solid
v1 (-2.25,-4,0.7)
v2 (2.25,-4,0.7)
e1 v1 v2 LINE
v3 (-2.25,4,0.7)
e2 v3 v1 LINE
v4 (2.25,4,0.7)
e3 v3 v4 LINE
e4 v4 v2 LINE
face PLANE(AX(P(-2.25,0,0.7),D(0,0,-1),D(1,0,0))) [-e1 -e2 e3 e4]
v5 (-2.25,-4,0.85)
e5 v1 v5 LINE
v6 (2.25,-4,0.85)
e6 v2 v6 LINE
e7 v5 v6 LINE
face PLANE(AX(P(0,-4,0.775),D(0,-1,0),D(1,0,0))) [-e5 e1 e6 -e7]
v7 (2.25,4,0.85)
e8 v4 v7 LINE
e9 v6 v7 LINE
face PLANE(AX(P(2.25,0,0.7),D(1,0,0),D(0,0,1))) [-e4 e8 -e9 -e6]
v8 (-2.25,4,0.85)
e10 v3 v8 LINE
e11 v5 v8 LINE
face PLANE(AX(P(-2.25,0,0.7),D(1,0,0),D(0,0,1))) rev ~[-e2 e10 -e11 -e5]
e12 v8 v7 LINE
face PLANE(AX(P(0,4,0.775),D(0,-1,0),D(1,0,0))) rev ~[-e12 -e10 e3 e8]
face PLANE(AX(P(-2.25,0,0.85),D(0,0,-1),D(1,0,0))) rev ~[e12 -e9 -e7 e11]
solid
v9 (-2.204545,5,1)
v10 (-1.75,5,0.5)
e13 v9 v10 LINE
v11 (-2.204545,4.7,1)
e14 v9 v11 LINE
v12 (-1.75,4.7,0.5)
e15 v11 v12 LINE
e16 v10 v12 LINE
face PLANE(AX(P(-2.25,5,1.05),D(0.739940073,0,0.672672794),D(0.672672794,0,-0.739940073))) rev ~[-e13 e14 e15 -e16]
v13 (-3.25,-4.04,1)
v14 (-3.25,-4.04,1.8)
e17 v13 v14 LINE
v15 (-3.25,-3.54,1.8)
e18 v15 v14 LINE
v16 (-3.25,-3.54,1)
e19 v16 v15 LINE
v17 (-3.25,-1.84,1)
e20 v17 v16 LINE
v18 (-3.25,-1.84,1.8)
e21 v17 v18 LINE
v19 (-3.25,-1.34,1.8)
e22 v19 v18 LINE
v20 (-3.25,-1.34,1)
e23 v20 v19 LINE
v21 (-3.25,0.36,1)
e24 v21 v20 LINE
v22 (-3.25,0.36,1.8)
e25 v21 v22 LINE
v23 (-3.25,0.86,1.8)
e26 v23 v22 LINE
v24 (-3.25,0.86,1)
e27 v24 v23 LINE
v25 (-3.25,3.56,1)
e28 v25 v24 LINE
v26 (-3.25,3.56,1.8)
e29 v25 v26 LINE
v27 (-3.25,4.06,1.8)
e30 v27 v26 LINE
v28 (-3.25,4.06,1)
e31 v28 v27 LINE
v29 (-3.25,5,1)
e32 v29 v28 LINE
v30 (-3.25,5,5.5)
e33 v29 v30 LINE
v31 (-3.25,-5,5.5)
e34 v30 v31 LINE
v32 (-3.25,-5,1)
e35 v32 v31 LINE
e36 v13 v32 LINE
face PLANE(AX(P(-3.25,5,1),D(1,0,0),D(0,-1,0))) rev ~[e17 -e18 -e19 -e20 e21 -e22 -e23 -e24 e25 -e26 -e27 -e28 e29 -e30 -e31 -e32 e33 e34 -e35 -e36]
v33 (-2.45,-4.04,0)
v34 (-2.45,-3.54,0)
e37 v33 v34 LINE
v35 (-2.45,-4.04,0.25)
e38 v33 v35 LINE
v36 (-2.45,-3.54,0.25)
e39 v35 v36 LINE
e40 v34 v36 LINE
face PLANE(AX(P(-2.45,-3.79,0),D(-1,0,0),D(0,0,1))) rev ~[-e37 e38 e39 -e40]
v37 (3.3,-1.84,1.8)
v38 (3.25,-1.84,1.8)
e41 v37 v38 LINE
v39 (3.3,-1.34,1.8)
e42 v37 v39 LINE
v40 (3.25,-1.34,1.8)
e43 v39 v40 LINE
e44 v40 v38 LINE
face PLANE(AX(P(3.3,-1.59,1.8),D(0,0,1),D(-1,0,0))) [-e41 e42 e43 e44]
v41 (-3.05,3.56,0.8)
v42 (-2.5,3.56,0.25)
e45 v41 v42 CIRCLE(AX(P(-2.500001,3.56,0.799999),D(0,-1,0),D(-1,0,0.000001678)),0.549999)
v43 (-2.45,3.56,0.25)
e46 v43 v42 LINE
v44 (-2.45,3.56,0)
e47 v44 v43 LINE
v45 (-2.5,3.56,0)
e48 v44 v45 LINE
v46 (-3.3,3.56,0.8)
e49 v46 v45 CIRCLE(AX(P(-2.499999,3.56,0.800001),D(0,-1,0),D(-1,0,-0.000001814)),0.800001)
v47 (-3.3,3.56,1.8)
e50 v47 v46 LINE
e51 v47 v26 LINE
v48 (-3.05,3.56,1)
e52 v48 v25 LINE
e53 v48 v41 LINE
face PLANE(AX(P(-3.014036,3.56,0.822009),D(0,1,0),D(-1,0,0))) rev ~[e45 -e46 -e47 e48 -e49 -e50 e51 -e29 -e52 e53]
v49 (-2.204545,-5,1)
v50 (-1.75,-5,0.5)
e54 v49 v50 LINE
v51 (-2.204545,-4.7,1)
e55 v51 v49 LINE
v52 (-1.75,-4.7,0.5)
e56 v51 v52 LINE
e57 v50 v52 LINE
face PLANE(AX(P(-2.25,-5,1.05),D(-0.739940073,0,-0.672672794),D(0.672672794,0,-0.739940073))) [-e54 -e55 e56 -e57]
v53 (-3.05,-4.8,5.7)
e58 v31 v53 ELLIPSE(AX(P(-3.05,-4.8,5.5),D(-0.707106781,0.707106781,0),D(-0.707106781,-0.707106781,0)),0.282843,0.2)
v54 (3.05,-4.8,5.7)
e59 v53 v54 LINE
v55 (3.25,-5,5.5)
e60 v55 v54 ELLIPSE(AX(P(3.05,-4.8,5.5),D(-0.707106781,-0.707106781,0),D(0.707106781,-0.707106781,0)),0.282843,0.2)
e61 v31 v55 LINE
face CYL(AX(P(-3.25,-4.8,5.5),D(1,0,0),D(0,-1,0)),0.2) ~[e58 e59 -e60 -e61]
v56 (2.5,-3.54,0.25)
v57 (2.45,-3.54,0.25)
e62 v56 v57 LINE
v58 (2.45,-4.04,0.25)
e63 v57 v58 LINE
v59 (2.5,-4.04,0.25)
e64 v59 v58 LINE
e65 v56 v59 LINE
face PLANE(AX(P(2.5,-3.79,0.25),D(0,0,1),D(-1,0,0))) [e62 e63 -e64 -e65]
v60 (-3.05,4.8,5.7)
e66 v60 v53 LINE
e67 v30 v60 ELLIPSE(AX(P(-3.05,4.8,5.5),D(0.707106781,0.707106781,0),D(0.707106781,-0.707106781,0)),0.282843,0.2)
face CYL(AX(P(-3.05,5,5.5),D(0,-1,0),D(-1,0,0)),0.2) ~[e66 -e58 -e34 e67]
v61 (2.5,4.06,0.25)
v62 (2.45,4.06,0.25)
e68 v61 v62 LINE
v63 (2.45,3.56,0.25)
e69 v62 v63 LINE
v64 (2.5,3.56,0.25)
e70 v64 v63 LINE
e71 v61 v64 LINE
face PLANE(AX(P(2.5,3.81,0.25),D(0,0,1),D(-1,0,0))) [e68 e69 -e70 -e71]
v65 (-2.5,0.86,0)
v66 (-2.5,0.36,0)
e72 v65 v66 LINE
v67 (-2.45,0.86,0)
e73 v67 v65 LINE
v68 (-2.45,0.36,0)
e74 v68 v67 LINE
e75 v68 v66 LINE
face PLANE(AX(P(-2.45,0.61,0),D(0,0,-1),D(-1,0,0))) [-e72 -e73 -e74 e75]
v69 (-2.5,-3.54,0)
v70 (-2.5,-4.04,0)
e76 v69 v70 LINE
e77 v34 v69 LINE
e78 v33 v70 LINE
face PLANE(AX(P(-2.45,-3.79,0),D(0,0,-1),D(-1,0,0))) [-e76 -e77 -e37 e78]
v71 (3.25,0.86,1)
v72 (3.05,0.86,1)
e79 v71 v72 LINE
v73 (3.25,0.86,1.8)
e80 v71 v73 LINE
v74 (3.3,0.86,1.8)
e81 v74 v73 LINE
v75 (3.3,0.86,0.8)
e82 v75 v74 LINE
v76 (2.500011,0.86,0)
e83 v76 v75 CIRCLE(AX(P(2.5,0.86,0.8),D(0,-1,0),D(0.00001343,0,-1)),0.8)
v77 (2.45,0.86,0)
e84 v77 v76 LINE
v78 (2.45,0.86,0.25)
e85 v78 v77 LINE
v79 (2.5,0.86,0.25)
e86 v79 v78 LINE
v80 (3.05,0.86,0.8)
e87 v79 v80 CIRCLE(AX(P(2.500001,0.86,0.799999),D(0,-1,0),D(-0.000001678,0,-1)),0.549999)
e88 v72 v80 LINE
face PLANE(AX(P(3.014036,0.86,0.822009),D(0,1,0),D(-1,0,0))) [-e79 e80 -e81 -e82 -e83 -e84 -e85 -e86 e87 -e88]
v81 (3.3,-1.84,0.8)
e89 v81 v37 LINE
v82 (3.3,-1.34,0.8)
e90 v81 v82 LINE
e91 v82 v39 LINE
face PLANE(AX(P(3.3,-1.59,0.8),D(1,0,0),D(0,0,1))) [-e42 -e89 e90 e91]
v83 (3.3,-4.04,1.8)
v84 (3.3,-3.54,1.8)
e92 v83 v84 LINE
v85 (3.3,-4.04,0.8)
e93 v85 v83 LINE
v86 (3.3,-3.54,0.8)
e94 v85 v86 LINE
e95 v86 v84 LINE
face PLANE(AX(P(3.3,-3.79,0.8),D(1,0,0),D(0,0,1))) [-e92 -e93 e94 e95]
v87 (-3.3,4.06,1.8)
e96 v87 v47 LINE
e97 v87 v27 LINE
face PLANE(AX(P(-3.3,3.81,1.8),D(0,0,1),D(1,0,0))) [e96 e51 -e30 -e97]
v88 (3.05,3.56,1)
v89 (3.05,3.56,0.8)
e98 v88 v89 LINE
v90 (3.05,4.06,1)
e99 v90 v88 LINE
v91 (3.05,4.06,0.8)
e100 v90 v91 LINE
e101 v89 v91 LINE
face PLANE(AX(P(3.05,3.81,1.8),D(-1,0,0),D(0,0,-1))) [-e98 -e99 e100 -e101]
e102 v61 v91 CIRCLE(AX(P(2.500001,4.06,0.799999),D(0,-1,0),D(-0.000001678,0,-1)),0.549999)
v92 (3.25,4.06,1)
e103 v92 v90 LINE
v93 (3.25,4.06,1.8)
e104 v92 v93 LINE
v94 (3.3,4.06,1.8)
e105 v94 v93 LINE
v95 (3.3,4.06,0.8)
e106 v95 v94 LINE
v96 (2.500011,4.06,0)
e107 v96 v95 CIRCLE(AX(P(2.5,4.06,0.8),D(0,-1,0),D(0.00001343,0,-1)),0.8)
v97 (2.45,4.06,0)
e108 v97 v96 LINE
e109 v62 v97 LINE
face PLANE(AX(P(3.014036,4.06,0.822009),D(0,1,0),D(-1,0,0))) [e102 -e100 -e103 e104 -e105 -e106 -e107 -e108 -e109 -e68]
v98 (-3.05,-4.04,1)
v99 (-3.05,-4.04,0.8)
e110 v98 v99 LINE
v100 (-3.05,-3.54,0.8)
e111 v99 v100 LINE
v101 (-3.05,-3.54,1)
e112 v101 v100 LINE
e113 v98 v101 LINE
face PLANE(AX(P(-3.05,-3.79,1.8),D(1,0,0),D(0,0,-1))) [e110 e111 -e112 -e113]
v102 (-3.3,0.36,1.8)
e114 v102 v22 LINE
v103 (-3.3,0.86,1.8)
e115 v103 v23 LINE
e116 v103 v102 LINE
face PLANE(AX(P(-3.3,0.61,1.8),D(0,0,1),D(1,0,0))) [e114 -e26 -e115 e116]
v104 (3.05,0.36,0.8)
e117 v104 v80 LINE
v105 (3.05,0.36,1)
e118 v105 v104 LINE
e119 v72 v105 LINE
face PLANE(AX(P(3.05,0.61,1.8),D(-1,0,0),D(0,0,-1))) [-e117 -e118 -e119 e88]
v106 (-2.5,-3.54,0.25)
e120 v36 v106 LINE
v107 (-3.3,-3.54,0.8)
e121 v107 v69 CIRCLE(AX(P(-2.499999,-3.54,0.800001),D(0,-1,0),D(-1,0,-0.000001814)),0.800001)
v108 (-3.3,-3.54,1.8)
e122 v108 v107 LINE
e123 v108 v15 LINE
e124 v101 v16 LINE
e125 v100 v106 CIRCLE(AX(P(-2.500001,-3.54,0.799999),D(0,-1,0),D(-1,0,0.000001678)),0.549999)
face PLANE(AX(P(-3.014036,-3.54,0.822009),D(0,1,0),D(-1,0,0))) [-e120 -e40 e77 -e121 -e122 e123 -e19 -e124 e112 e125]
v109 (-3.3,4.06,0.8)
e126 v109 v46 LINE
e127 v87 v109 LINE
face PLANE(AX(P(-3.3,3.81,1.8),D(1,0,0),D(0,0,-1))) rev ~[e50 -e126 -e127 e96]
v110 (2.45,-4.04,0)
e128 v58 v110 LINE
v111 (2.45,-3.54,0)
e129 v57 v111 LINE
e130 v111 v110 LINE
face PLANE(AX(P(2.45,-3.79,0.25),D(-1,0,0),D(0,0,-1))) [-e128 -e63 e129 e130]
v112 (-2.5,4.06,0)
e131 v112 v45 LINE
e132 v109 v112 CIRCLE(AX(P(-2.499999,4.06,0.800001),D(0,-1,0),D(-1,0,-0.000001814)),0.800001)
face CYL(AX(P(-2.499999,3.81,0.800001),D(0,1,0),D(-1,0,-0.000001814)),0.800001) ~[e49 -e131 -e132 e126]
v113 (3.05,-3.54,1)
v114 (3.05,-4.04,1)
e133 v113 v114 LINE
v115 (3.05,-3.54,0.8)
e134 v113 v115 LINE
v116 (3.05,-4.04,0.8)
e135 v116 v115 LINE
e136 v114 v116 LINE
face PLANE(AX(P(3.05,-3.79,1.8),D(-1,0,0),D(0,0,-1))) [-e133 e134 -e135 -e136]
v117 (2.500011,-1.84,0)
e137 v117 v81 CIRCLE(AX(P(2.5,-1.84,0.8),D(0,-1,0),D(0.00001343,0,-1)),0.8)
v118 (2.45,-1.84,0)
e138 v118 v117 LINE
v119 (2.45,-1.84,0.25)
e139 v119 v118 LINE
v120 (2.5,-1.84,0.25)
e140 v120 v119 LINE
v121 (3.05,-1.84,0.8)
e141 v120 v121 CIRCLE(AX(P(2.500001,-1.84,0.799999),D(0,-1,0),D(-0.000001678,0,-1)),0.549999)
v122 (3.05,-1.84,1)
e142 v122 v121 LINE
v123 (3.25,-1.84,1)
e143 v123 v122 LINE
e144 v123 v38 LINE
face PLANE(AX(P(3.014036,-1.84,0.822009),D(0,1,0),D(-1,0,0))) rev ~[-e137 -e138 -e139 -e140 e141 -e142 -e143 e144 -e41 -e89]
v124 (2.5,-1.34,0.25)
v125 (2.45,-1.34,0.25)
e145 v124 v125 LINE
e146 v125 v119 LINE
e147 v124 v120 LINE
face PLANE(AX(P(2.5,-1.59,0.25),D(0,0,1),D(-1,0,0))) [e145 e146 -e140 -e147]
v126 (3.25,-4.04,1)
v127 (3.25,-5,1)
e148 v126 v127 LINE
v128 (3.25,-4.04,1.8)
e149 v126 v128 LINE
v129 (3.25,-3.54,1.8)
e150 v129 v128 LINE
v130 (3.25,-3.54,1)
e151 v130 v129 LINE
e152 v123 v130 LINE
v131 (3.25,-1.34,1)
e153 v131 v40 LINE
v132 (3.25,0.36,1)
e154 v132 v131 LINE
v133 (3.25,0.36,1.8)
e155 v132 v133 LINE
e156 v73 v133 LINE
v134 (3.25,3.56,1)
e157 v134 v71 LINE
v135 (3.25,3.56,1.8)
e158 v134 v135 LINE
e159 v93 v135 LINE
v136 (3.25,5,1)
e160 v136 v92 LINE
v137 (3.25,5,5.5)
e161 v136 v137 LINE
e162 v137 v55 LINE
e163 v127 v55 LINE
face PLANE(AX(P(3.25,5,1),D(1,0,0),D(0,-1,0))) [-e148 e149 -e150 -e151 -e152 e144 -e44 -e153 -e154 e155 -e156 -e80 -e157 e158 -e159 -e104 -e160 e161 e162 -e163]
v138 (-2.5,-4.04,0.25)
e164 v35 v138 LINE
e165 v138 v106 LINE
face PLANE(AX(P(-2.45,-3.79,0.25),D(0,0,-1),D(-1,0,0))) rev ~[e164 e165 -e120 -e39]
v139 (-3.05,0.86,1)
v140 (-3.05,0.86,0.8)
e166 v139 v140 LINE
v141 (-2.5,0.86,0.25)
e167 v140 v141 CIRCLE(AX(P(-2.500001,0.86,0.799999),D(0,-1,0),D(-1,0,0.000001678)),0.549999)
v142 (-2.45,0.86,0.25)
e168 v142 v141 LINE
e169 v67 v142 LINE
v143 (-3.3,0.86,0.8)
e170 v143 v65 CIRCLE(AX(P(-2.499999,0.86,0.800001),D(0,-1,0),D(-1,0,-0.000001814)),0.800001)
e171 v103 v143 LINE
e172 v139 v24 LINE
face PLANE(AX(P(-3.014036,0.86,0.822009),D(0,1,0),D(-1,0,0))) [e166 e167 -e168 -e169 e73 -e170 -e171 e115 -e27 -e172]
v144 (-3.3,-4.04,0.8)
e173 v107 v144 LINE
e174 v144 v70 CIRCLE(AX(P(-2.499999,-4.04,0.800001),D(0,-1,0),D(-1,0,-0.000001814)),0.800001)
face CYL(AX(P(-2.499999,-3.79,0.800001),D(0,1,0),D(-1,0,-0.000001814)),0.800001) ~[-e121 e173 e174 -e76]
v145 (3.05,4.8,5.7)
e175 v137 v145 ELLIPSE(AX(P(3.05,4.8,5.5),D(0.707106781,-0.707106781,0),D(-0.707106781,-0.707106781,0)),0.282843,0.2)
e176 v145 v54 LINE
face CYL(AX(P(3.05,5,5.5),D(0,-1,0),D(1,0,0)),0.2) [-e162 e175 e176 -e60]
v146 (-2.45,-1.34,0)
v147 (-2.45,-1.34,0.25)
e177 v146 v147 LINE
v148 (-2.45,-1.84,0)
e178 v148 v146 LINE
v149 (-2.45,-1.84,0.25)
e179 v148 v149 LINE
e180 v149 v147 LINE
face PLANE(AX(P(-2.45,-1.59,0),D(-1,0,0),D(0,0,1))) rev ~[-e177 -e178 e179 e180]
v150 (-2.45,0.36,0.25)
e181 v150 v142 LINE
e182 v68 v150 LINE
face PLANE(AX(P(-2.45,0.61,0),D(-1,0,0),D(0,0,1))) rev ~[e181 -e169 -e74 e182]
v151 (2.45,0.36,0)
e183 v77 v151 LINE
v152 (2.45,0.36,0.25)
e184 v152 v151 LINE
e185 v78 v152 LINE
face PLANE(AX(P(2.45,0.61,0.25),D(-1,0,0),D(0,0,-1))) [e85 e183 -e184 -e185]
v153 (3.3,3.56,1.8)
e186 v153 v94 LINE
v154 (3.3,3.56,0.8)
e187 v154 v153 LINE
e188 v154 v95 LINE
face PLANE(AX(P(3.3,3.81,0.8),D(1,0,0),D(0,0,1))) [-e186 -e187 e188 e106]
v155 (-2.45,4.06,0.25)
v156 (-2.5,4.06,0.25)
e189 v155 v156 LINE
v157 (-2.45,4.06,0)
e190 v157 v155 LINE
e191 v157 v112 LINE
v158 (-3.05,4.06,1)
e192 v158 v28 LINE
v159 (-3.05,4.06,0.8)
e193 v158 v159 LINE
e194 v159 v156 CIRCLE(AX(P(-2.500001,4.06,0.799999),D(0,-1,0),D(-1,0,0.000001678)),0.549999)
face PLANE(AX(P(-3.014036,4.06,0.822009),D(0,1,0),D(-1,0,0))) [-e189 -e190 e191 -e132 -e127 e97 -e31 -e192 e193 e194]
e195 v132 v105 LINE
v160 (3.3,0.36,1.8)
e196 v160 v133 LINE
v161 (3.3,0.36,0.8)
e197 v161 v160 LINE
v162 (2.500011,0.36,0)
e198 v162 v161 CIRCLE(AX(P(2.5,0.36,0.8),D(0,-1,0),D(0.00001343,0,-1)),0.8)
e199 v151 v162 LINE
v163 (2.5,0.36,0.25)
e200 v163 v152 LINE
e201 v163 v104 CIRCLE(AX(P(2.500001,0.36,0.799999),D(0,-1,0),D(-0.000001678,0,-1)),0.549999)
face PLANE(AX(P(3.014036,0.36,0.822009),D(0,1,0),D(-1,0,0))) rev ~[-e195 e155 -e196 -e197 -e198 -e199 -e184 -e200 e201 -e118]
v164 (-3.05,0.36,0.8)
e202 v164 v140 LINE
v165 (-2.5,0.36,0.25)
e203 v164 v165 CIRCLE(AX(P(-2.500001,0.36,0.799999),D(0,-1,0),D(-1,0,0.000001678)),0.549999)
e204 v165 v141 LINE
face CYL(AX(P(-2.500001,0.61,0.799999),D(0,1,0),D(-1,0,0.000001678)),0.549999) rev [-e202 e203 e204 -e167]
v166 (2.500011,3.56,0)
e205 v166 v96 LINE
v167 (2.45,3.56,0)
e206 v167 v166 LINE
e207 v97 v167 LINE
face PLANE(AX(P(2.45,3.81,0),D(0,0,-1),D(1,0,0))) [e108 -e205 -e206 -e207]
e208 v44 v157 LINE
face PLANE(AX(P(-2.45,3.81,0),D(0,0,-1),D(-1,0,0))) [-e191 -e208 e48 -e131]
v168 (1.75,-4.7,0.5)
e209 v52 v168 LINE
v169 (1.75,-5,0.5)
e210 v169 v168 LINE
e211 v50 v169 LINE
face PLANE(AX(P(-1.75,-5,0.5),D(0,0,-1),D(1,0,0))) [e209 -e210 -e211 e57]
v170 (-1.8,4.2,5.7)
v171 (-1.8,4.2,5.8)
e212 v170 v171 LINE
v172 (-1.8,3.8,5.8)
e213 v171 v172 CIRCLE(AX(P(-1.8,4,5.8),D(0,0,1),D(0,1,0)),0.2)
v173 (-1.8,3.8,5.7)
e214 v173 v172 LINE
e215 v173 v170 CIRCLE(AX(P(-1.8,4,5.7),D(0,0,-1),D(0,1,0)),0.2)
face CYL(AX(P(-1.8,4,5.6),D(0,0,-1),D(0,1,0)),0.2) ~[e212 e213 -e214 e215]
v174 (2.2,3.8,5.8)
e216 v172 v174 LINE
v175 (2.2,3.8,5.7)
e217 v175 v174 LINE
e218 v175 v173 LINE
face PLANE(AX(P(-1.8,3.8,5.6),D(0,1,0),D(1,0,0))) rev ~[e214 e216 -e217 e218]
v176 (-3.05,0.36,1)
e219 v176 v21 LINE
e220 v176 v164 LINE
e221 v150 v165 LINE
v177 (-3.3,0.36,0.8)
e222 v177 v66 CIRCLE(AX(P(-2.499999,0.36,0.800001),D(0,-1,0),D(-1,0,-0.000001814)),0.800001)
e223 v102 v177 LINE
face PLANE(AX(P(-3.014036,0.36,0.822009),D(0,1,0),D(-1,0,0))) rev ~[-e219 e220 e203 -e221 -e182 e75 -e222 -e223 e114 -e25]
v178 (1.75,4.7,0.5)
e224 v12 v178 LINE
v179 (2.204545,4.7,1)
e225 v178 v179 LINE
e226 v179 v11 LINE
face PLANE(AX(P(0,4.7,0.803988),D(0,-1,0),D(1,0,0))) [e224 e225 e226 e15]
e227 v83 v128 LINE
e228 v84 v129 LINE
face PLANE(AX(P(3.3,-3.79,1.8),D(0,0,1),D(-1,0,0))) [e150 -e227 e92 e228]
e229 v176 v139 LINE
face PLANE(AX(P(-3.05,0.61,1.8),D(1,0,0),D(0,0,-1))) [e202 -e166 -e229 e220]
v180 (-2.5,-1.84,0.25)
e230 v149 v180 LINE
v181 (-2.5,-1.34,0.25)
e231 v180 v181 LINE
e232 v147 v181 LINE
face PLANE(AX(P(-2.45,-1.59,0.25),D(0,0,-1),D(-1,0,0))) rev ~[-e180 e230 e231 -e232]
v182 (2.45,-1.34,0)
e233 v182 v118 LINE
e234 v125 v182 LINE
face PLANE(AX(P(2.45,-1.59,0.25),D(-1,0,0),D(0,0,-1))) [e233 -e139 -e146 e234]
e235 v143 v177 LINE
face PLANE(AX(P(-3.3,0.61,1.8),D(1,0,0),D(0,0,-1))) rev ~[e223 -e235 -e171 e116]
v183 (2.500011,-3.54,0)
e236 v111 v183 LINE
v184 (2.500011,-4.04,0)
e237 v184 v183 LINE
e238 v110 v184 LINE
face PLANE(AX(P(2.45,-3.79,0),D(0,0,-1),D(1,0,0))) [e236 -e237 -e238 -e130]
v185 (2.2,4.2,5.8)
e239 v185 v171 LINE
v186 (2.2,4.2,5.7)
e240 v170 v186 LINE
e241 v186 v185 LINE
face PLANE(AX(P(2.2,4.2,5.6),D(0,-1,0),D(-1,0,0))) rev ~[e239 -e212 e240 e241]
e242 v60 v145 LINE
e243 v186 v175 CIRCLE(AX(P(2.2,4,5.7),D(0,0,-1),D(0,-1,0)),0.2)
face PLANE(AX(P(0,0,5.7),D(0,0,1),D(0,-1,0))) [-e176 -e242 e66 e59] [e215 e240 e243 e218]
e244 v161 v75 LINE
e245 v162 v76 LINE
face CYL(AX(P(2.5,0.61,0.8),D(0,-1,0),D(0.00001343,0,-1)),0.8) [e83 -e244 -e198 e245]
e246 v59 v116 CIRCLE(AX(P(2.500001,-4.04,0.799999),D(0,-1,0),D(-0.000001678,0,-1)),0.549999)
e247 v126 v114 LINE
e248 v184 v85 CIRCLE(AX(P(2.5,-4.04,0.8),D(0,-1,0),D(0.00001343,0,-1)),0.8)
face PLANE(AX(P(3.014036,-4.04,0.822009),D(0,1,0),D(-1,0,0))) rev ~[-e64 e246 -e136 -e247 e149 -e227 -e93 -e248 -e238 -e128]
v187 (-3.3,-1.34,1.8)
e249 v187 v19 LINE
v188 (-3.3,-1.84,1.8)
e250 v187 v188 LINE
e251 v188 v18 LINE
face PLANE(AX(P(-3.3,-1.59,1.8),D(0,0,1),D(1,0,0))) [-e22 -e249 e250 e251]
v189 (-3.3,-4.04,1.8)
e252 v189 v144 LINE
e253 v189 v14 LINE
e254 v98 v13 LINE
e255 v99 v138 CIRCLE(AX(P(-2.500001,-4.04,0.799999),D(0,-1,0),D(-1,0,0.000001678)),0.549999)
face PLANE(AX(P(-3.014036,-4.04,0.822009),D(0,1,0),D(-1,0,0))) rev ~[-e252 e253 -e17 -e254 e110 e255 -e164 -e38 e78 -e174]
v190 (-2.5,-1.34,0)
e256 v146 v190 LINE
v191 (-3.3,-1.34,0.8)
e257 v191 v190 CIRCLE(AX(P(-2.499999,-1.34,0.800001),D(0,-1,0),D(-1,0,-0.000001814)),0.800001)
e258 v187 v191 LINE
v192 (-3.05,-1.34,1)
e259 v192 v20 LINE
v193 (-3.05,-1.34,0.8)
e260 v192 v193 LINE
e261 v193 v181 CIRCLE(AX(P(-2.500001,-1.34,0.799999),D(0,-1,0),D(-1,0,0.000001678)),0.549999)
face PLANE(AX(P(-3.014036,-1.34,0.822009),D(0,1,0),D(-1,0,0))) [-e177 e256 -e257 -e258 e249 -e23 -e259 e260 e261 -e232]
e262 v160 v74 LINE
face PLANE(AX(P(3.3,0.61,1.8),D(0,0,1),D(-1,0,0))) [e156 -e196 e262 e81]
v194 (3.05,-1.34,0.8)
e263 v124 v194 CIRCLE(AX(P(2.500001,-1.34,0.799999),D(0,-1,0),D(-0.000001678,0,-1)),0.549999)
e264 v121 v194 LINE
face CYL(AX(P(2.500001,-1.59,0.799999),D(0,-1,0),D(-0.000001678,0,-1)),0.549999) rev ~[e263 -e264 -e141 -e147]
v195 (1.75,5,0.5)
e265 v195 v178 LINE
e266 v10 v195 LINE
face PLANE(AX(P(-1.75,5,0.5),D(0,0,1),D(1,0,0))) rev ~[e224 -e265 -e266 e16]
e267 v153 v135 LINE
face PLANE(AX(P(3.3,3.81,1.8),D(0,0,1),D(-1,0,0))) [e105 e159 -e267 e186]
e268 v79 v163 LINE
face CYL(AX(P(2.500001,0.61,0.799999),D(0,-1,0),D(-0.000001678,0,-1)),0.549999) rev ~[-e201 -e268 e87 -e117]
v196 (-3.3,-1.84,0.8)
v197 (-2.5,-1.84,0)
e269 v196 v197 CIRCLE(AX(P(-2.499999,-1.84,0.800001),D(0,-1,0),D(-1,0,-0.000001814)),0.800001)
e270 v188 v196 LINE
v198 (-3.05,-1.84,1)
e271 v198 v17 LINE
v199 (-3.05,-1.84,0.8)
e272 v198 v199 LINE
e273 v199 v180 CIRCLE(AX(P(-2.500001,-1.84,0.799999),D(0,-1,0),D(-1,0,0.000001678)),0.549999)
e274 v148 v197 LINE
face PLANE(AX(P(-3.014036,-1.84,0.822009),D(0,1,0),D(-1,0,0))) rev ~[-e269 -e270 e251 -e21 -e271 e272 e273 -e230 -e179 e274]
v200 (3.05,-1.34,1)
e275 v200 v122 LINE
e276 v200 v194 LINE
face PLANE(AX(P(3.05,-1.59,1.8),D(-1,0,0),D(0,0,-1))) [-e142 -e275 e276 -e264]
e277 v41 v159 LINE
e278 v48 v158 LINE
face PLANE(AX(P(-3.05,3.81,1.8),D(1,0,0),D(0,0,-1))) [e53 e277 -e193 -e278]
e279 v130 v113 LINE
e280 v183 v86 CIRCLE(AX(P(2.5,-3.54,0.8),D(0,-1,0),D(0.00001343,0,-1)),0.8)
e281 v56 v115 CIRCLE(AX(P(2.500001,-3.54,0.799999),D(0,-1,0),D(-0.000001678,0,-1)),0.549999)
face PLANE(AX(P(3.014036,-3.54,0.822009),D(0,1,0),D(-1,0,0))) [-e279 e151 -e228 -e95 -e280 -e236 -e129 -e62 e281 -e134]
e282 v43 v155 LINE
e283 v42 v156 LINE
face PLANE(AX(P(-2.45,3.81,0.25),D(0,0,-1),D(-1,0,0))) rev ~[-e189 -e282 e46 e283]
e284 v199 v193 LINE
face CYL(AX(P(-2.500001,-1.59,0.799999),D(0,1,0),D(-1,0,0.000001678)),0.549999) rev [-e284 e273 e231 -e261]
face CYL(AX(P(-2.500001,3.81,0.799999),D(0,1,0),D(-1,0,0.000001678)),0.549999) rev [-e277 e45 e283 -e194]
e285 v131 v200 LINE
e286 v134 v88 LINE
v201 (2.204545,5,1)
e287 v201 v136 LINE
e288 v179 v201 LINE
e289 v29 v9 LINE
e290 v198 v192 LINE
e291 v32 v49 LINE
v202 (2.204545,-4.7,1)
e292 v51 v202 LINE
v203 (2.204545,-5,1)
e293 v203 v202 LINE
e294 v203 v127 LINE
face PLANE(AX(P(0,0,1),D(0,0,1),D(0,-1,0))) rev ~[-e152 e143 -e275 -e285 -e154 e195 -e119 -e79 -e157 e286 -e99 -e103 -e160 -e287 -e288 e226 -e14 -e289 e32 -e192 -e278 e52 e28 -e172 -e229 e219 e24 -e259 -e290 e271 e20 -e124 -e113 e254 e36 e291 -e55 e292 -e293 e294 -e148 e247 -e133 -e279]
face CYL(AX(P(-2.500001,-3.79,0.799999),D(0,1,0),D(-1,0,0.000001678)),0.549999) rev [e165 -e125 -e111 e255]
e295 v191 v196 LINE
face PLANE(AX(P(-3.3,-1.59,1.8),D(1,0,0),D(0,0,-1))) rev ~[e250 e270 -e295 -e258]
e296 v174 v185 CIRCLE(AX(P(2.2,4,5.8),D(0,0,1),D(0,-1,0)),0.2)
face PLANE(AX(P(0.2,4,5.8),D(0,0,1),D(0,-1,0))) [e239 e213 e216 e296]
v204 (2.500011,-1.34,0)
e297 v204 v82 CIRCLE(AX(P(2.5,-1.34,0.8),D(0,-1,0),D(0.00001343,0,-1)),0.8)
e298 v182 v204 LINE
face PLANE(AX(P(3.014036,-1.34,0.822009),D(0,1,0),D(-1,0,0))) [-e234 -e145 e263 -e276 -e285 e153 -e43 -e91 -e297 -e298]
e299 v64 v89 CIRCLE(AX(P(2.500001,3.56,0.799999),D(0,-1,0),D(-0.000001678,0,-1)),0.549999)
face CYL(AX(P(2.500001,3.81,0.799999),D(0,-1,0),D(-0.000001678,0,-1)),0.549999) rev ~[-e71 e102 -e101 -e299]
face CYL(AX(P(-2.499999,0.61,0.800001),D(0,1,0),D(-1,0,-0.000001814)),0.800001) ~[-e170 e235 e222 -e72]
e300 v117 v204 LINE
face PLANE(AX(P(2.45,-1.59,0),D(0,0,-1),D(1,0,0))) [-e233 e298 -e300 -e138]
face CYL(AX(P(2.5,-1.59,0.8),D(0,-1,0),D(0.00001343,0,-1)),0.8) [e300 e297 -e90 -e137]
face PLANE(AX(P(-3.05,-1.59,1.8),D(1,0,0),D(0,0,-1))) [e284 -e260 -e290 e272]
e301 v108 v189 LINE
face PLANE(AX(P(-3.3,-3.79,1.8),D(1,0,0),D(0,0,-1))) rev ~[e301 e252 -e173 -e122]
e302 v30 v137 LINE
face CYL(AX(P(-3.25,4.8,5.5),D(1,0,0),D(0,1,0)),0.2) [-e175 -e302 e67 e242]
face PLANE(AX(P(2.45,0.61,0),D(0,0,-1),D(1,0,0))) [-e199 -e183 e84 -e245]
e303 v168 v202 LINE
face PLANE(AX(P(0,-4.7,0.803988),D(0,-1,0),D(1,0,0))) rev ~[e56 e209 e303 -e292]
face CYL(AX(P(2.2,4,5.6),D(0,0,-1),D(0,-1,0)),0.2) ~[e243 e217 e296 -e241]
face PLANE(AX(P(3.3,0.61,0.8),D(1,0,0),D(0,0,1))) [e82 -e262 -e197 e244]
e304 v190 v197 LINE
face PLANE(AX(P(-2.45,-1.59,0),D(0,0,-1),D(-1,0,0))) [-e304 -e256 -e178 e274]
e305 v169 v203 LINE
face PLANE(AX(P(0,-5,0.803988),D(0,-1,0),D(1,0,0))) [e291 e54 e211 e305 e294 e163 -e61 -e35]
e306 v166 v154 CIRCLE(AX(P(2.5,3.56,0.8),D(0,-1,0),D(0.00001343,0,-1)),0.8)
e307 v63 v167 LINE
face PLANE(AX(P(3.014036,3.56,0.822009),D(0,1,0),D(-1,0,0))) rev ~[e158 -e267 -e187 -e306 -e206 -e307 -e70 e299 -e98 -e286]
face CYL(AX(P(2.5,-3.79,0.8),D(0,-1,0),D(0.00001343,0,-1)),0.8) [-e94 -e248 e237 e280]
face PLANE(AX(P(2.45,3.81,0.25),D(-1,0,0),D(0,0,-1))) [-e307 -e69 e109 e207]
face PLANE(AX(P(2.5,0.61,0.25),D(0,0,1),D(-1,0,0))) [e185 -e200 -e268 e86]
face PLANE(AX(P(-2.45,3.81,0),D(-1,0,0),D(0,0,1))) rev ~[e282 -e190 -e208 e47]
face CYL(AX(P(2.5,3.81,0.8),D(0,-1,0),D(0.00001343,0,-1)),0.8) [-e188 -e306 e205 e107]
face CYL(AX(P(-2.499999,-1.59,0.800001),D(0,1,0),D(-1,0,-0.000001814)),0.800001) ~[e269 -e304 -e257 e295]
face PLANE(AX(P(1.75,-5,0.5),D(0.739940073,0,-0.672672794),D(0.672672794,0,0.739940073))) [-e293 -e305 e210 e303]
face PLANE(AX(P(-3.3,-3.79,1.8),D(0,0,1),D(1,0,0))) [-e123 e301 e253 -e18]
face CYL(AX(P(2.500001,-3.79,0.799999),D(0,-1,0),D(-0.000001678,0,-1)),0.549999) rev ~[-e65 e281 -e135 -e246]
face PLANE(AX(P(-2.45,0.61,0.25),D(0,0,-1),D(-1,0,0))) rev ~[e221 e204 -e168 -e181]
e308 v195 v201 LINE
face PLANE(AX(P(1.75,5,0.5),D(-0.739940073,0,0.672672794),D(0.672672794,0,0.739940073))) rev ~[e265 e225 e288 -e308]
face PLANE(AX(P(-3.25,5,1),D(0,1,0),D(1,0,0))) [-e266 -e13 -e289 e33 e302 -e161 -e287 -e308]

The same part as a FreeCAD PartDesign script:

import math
import FreeCAD as App
import Part
import Sketcher

V = App.Vector
Q = App.Units.Quantity


def edges_at(feature, points):
    """Names of the edges that pass closest to the given points."""
    edges = feature.Shape.Edges
    near = lambda p: min(range(len(edges)), key=lambda i: edges[i].distToShape(Part.Vertex(*p))[0])
    return sorted({f"Edge{near(p) + 1}" for p in points})


def add_polygon(sketch, points):
    """Adds a closed chain of lines whose ends are joined by coincident constraints."""
    first, n = sketch.GeometryCount, len(points)
    for a, b in zip(points, points[1:] + points[:1]):
        sketch.addGeometry(Part.LineSegment(App.Vector(*a, 0), App.Vector(*b, 0)), False)
    for i in range(n):
        sketch.addConstraint(Sketcher.Constraint("Coincident", first + i, 2, first + (i + 1) % n, 1))

doc = App.newDocument("Part")
body = doc.addObject("PartDesign::Body", "Body")

sketch1 = doc.addObject("Sketcher::SketchObject", "Sketch")
body.addObject(sketch1)
sketch1.AttachmentSupport = (doc.XY_Plane, [""])
sketch1.MapMode = "FlatFace"
sketch1.AttachmentOffset = App.Placement(V(0, 0, 1), App.Rotation())
add_polygon(sketch1, [(3, 5), (-3, 5), (-3, -5), (3, -5)])
sketch1.addConstraint([
    Sketcher.Constraint("Horizontal", 0),
    Sketcher.Constraint("Vertical", 1),
    Sketcher.Constraint("Horizontal", 2),
    Sketcher.Constraint("Vertical", 3),
    Sketcher.Constraint("Symmetric", 0, 2, 2, 2, -1, 1),
    Sketcher.Constraint("DistanceY", 1, 2, 1, 1, Q("10 mm")),
    Sketcher.Constraint("DistanceX", 0, 2, 0, 1, Q("6.5 mm")),
])
pad1 = doc.addObject("PartDesign::Pad", "Pad")
body.addObject(pad1)
pad1.Profile = sketch1
pad1.Length = 4.7
doc.recompute()

fillet = doc.addObject("PartDesign::Fillet", "Fillet")
body.addObject(fillet)
fillet.Base = (pad1, edges_at(pad1, [
    (-3.25, 0, 5.7),
    (0, -5, 5.7),
    (3.25, 0, 5.7),
    (0, 5, 5.7),
]))
fillet.Radius = 0.2
body2 = doc.addObject("PartDesign::Body", "Body001")
body2.AllowCompound = True

sketch2 = doc.addObject("Sketcher::SketchObject", "Sketch001")
body2.addObject(sketch2)
sketch2.AttachmentSupport = (doc.getObject("XZ_Plane001"), [""])
sketch2.MapMode = "FlatFace"
sketch2.AttachmentOffset = App.Placement(V(0, 0, 1.59), App.Rotation())
sketch2.addGeometry([
    Part.LineSegment(V(-3.05, 1.8, 0), V(-3.3, 1.8, 0)),
    Part.LineSegment(V(-3.3, 1.8, 0), V(-3.3, 0.8, 0)),
    Part.ArcOfCircle(Part.Circle(V(-2.5, 0.8, 0), V(0, 0, 1), 0.8), math.radians(-180), math.radians(-90)),
    Part.LineSegment(V(-2.5, 0, 0), V(-2.45, 0, 0)),
    Part.LineSegment(V(-2.45, 0, 0), V(-2.45, 0.25, 0)),
    Part.LineSegment(V(-2.45, 0.25, 0), V(-2.5, 0.25, 0)),
    Part.ArcOfCircle(Part.Circle(V(-2.5, 0.8, 0), V(0, 0, 1), 0.55), math.radians(180), math.radians(270)),
    Part.LineSegment(V(-3.05, 0.8, 0), V(-3.05, 1.8, 0)),
    Part.ArcOfCircle(Part.Circle(V(2.5, 0.8, 0), V(0, 0, 1), 0.55), math.radians(-90), math.radians(0)),
    Part.LineSegment(V(2.5, 0.25, 0), V(2.45, 0.25, 0)),
    Part.LineSegment(V(2.45, 0.25, 0), V(2.45, 0, 0)),
    Part.LineSegment(V(2.45, 0, 0), V(2.5, 0, 0)),
    Part.ArcOfCircle(Part.Circle(V(2.5, 0.8, 0), V(0, 0, 1), 0.8), math.radians(-90), math.radians(0)),
    Part.LineSegment(V(3.3, 0.8, 0), V(3.3, 1.8, 0)),
    Part.LineSegment(V(3.3, 1.8, 0), V(3.05, 1.8, 0)),
    Part.LineSegment(V(3.05, 1.8, 0), V(3.05, 0.8, 0)),
], False)
sketch2.addConstraint([
    Sketcher.Constraint("Coincident", 0, 2, 1, 1),
    Sketcher.Constraint("Tangent", 1, 2, 2, 1),
    Sketcher.Constraint("Tangent", 2, 2, 3, 1),
    Sketcher.Constraint("Coincident", 3, 2, 4, 1),
    Sketcher.Constraint("Coincident", 4, 2, 5, 1),
    Sketcher.Constraint("Tangent", 5, 2, 6, 2),
    Sketcher.Constraint("Tangent", 6, 1, 7, 1),
    Sketcher.Constraint("Coincident", 7, 2, 0, 1),
    Sketcher.Constraint("Tangent", 8, 1, 9, 1),
    Sketcher.Constraint("Coincident", 9, 2, 10, 1),
    Sketcher.Constraint("Coincident", 10, 2, 11, 1),
    Sketcher.Constraint("Coincident", 11, 2, 12, 1),
    Sketcher.Constraint("Tangent", 12, 2, 13, 1),
    Sketcher.Constraint("Coincident", 13, 2, 14, 1),
    Sketcher.Constraint("Coincident", 14, 2, 15, 1),
    Sketcher.Constraint("Tangent", 15, 2, 8, 2),
    Sketcher.Constraint("Horizontal", 0),
    Sketcher.Constraint("Vertical", 1),
    Sketcher.Constraint("Horizontal", 3),
    Sketcher.Constraint("Vertical", 4),
    Sketcher.Constraint("Horizontal", 5),
    Sketcher.Constraint("Vertical", 7),
    Sketcher.Constraint("Horizontal", 9),
    Sketcher.Constraint("Vertical", 10),
    Sketcher.Constraint("Horizontal", 11),
    Sketcher.Constraint("Vertical", 13),
    Sketcher.Constraint("Horizontal", 14),
    Sketcher.Constraint("Vertical", 15),
    Sketcher.Constraint("Coincident", 6, 3, 2, 3),
    Sketcher.Constraint("Coincident", 12, 3, 8, 3),
    Sketcher.Constraint("Equal", 6, 8),
    Sketcher.Constraint("Equal", 2, 12),
    Sketcher.Constraint("Symmetric", 3, 2, 10, 2, -1, 1),
    Sketcher.Constraint("Symmetric", 2, 3, 8, 3, -2),
    Sketcher.Constraint("Horizontal", 7, 2, 13, 2),
    Sketcher.Constraint("Radius", 2, Q("0.800001 mm")),
    Sketcher.Constraint("DistanceY", 1, 2, 1, 1, Q("1 mm")),
    Sketcher.Constraint("Radius", 6, Q("0.549999 mm")),
    Sketcher.Constraint("DistanceX", 2, 3, 8, 3, Q("4.999999 mm")),
    Sketcher.Constraint("DistanceX", 3, 1, 3, 2, Q("0.05 mm")),
    Sketcher.Constraint("DistanceX", 11, 1, 11, 2, Q("0.050011 mm")),
])
pad2 = doc.addObject("PartDesign::Pad", "Pad001")
body2.addObject(pad2)
pad2.Profile = sketch2
pad2.Length = 0.5
pad2.Midplane = True
body3 = doc.addObject("PartDesign::Body", "Body002")
body3.AllowCompound = True

sketch3 = doc.addObject("Sketcher::SketchObject", "Sketch002")
body3.addObject(sketch3)
sketch3.AttachmentSupport = (doc.getObject("XZ_Plane002"), [""])
sketch3.MapMode = "FlatFace"
sketch3.AttachmentOffset = App.Placement(V(0, 0, 3.79), App.Rotation())
sketch3.addGeometry([
    Part.LineSegment(V(-3.05, 1.8, 0), V(-3.3, 1.8, 0)),
    Part.LineSegment(V(-3.3, 1.8, 0), V(-3.3, 0.8, 0)),
    Part.ArcOfCircle(Part.Circle(V(-2.5, 0.8, 0), V(0, 0, 1), 0.8), math.radians(-180), math.radians(-90)),
    Part.LineSegment(V(-2.5, 0, 0), V(-2.45, 0, 0)),
    Part.LineSegment(V(-2.45, 0, 0), V(-2.45, 0.25, 0)),
    Part.LineSegment(V(-2.45, 0.25, 0), V(-2.5, 0.25, 0)),
    Part.ArcOfCircle(Part.Circle(V(-2.5, 0.8, 0), V(0, 0, 1), 0.55), math.radians(180), math.radians(270)),
    Part.LineSegment(V(-3.05, 0.8, 0), V(-3.05, 1.8, 0)),
    Part.ArcOfCircle(Part.Circle(V(2.5, 0.8, 0), V(0, 0, 1), 0.55), math.radians(-90), math.radians(0)),
    Part.LineSegment(V(2.5, 0.25, 0), V(2.45, 0.25, 0)),
    Part.LineSegment(V(2.45, 0.25, 0), V(2.45, 0, 0)),
    Part.LineSegment(V(2.45, 0, 0), V(2.5, 0, 0)),
    Part.ArcOfCircle(Part.Circle(V(2.5, 0.8, 0), V(0, 0, 1), 0.8), math.radians(-90), math.radians(0)),
    Part.LineSegment(V(3.3, 0.8, 0), V(3.3, 1.8, 0)),
    Part.LineSegment(V(3.3, 1.8, 0), V(3.05, 1.8, 0)),
    Part.LineSegment(V(3.05, 1.8, 0), V(3.05, 0.8, 0)),
], False)
sketch3.addConstraint([
    Sketcher.Constraint("Coincident", 0, 2, 1, 1),
    Sketcher.Constraint("Tangent", 1, 2, 2, 1),
    Sketcher.Constraint("Tangent", 2, 2, 3, 1),
    Sketcher.Constraint("Coincident", 3, 2, 4, 1),
    Sketcher.Constraint("Coincident", 4, 2, 5, 1),
    Sketcher.Constraint("Tangent", 5, 2, 6, 2),
    Sketcher.Constraint("Tangent", 6, 1, 7, 1),
    Sketcher.Constraint("Coincident", 7, 2, 0, 1),
    Sketcher.Constraint("Tangent", 8, 1, 9, 1),
    Sketcher.Constraint("Coincident", 9, 2, 10, 1),
    Sketcher.Constraint("Coincident", 10, 2, 11, 1),
    Sketcher.Constraint("Coincident", 11, 2, 12, 1),
    Sketcher.Constraint("Tangent", 12, 2, 13, 1),
    Sketcher.Constraint("Coincident", 13, 2, 14, 1),
    Sketcher.Constraint("Coincident", 14, 2, 15, 1),
    Sketcher.Constraint("Tangent", 15, 2, 8, 2),
    Sketcher.Constraint("Horizontal", 0),
    Sketcher.Constraint("Vertical", 1),
    Sketcher.Constraint("Horizontal", 3),
    Sketcher.Constraint("Vertical", 4),
    Sketcher.Constraint("Horizontal", 5),
    Sketcher.Constraint("Vertical", 7),
    Sketcher.Constraint("Horizontal", 9),
    Sketcher.Constraint("Vertical", 10),
    Sketcher.Constraint("Horizontal", 11),
    Sketcher.Constraint("Vertical", 13),
    Sketcher.Constraint("Horizontal", 14),
    Sketcher.Constraint("Vertical", 15),
    Sketcher.Constraint("Coincident", 6, 3, 2, 3),
    Sketcher.Constraint("Coincident", 12, 3, 8, 3),
    Sketcher.Constraint("Equal", 6, 8),
    Sketcher.Constraint("Equal", 2, 12),
    Sketcher.Constraint("Symmetric", 3, 2, 10, 2, -1, 1),
    Sketcher.Constraint("Symmetric", 2, 3, 8, 3, -2),
    Sketcher.Constraint("Horizontal", 7, 2, 13, 2),
    Sketcher.Constraint("Radius", 2, Q("0.800001 mm")),
    Sketcher.Constraint("DistanceY", 1, 2, 1, 1, Q("1 mm")),
    Sketcher.Constraint("Radius", 6, Q("0.549999 mm")),
    Sketcher.Constraint("DistanceX", 2, 3, 8, 3, Q("4.999999 mm")),
    Sketcher.Constraint("DistanceX", 3, 1, 3, 2, Q("0.05 mm")),
    Sketcher.Constraint("DistanceX", 11, 1, 11, 2, Q("0.050011 mm")),
])
pad3 = doc.addObject("PartDesign::Pad", "Pad002")
body3.addObject(pad3)
pad3.Profile = sketch3
pad3.Length = 0.5
pad3.Midplane = True
body4 = doc.addObject("PartDesign::Body", "Body003")

sketch4 = doc.addObject("Sketcher::SketchObject", "Sketch003")
body4.addObject(sketch4)
sketch4.AttachmentSupport = (doc.getObject("XZ_Plane003"), [""])
sketch4.MapMode = "FlatFace"
sketch4.AttachmentOffset = App.Placement(V(0, 0, 5), App.Rotation())
add_polygon(sketch4, [(-1.8, 0.5), (1.8, 0.5), (2.2, 1.1), (-2.2, 1.1)])
sketch4.addConstraint([
    Sketcher.Constraint("Horizontal", 0),
    Sketcher.Constraint("Horizontal", 2),
    Sketcher.Constraint("Equal", 1, 3),
    Sketcher.Constraint("DistanceX", 0, 1, 0, 2, Q("3.5 mm")),
    Sketcher.Constraint("DistanceX", 2, 2, 2, 1, Q("4.5 mm")),
    Sketcher.Constraint("DistanceY", -1, 1, 0, 2, Q("0.5 mm")),
    Sketcher.Constraint("DistanceX", -1, 1, 0, 2, Q("1.75 mm")),
    Sketcher.Constraint("DistanceY", -1, 1, 1, 2, Q("1.05 mm")),
])
pad4 = doc.addObject("PartDesign::Pad", "Pad003")
body4.addObject(pad4)
pad4.Profile = sketch4
pad4.Length = 0.3
pad4.Reversed = True
body5 = doc.addObject("PartDesign::Body", "Body004")

sketch5 = doc.addObject("Sketcher::SketchObject", "Sketch004")
body5.addObject(sketch5)
sketch5.AttachmentSupport = (doc.getObject("XZ_Plane004"), [""])
sketch5.MapMode = "FlatFace"
add_polygon(sketch5, [(-2.25, 0.85), (-2.25, 0.7), (2.25, 0.7), (2.25, 0.85)])
sketch5.addConstraint([
    Sketcher.Constraint("Vertical", 0),
    Sketcher.Constraint("Horizontal", 1),
    Sketcher.Constraint("Vertical", 2),
    Sketcher.Constraint("Horizontal", 3),
    Sketcher.Constraint("DistanceX", 1, 1, 1, 2, Q("4.5 mm")),
    Sketcher.Constraint("DistanceY", 0, 2, 0, 1, Q("0.15 mm")),
    Sketcher.Constraint("DistanceY", -1, 1, 0, 2, Q("0.7 mm")),
    Sketcher.Constraint("DistanceX", 0, 2, -1, 1, Q("2.25 mm")),
])
pad5 = doc.addObject("PartDesign::Pad", "Pad004")
body5.addObject(pad5)
pad5.Profile = sketch5
pad5.Length = 8
pad5.Midplane = True
body6 = doc.addObject("PartDesign::Body", "Body005")
body6.AllowCompound = True

sketch6 = doc.addObject("Sketcher::SketchObject", "Sketch005")
body6.addObject(sketch6)
sketch6.AttachmentSupport = (doc.getObject("XZ_Plane005"), [""])
sketch6.MapMode = "FlatFace"
sketch6.AttachmentOffset = App.Placement(V(0, 0, -0.61), App.Rotation())
sketch6.addGeometry([
    Part.LineSegment(V(-3.05, 1.8, 0), V(-3.3, 1.8, 0)),
    Part.LineSegment(V(-3.3, 1.8, 0), V(-3.3, 0.8, 0)),
    Part.ArcOfCircle(Part.Circle(V(-2.5, 0.8, 0), V(0, 0, 1), 0.8), math.radians(-180), math.radians(-90)),
    Part.LineSegment(V(-2.5, 0, 0), V(-2.45, 0, 0)),
    Part.LineSegment(V(-2.45, 0, 0), V(-2.45, 0.25, 0)),
    Part.LineSegment(V(-2.45, 0.25, 0), V(-2.5, 0.25, 0)),
    Part.ArcOfCircle(Part.Circle(V(-2.5, 0.8, 0), V(0, 0, 1), 0.55), math.radians(180), math.radians(270)),
    Part.LineSegment(V(-3.05, 0.8, 0), V(-3.05, 1.8, 0)),
    Part.ArcOfCircle(Part.Circle(V(2.5, 0.8, 0), V(0, 0, 1), 0.55), math.radians(-90), math.radians(0)),
    Part.LineSegment(V(2.5, 0.25, 0), V(2.45, 0.25, 0)),
    Part.LineSegment(V(2.45, 0.25, 0), V(2.45, 0, 0)),
    Part.LineSegment(V(2.45, 0, 0), V(2.5, 0, 0)),
    Part.ArcOfCircle(Part.Circle(V(2.5, 0.8, 0), V(0, 0, 1), 0.8), math.radians(-90), math.radians(0)),
    Part.LineSegment(V(3.3, 0.8, 0), V(3.3, 1.8, 0)),
    Part.LineSegment(V(3.3, 1.8, 0), V(3.05, 1.8, 0)),
    Part.LineSegment(V(3.05, 1.8, 0), V(3.05, 0.8, 0)),
], False)
sketch6.addConstraint([
    Sketcher.Constraint("Coincident", 0, 2, 1, 1),
    Sketcher.Constraint("Tangent", 1, 2, 2, 1),
    Sketcher.Constraint("Tangent", 2, 2, 3, 1),
    Sketcher.Constraint("Coincident", 3, 2, 4, 1),
    Sketcher.Constraint("Coincident", 4, 2, 5, 1),
    Sketcher.Constraint("Tangent", 5, 2, 6, 2),
    Sketcher.Constraint("Tangent", 6, 1, 7, 1),
    Sketcher.Constraint("Coincident", 7, 2, 0, 1),
    Sketcher.Constraint("Tangent", 8, 1, 9, 1),
    Sketcher.Constraint("Coincident", 9, 2, 10, 1),
    Sketcher.Constraint("Coincident", 10, 2, 11, 1),
    Sketcher.Constraint("Coincident", 11, 2, 12, 1),
    Sketcher.Constraint("Tangent", 12, 2, 13, 1),
    Sketcher.Constraint("Coincident", 13, 2, 14, 1),
    Sketcher.Constraint("Coincident", 14, 2, 15, 1),
    Sketcher.Constraint("Tangent", 15, 2, 8, 2),
    Sketcher.Constraint("Horizontal", 0),
    Sketcher.Constraint("Vertical", 1),
    Sketcher.Constraint("Horizontal", 3),
    Sketcher.Constraint("Vertical", 4),
    Sketcher.Constraint("Horizontal", 5),
    Sketcher.Constraint("Vertical", 7),
    Sketcher.Constraint("Horizontal", 9),
    Sketcher.Constraint("Vertical", 10),
    Sketcher.Constraint("Horizontal", 11),
    Sketcher.Constraint("Vertical", 13),
    Sketcher.Constraint("Horizontal", 14),
    Sketcher.Constraint("Vertical", 15),
    Sketcher.Constraint("Coincident", 6, 3, 2, 3),
    Sketcher.Constraint("Coincident", 12, 3, 8, 3),
    Sketcher.Constraint("Equal", 6, 8),
    Sketcher.Constraint("Equal", 2, 12),
    Sketcher.Constraint("Symmetric", 3, 2, 10, 2, -1, 1),
    Sketcher.Constraint("Symmetric", 2, 3, 8, 3, -2),
    Sketcher.Constraint("Horizontal", 7, 2, 13, 2),
    Sketcher.Constraint("Radius", 2, Q("0.800001 mm")),
    Sketcher.Constraint("DistanceY", 1, 2, 1, 1, Q("1 mm")),
    Sketcher.Constraint("Radius", 6, Q("0.549999 mm")),
    Sketcher.Constraint("DistanceX", 2, 3, 8, 3, Q("4.999999 mm")),
    Sketcher.Constraint("DistanceX", 3, 1, 3, 2, Q("0.05 mm")),
    Sketcher.Constraint("DistanceX", 11, 1, 11, 2, Q("0.050011 mm")),
])
pad6 = doc.addObject("PartDesign::Pad", "Pad005")
body6.addObject(pad6)
pad6.Profile = sketch6
pad6.Length = 0.5
pad6.Midplane = True
body7 = doc.addObject("PartDesign::Body", "Body006")
body7.AllowCompound = True

sketch7 = doc.addObject("Sketcher::SketchObject", "Sketch006")
body7.addObject(sketch7)
sketch7.AttachmentSupport = (doc.getObject("XZ_Plane006"), [""])
sketch7.MapMode = "FlatFace"
sketch7.AttachmentOffset = App.Placement(V(0, 0, -3.81), App.Rotation())
sketch7.addGeometry([
    Part.LineSegment(V(-3.05, 1.8, 0), V(-3.3, 1.8, 0)),
    Part.LineSegment(V(-3.3, 1.8, 0), V(-3.3, 0.8, 0)),
    Part.ArcOfCircle(Part.Circle(V(-2.5, 0.8, 0), V(0, 0, 1), 0.8), math.radians(-180), math.radians(-90)),
    Part.LineSegment(V(-2.5, 0, 0), V(-2.45, 0, 0)),
    Part.LineSegment(V(-2.45, 0, 0), V(-2.45, 0.25, 0)),
    Part.LineSegment(V(-2.45, 0.25, 0), V(-2.5, 0.25, 0)),
    Part.ArcOfCircle(Part.Circle(V(-2.5, 0.8, 0), V(0, 0, 1), 0.55), math.radians(180), math.radians(270)),
    Part.LineSegment(V(-3.05, 0.8, 0), V(-3.05, 1.8, 0)),
    Part.ArcOfCircle(Part.Circle(V(2.5, 0.8, 0), V(0, 0, 1), 0.55), math.radians(-90), math.radians(0)),
    Part.LineSegment(V(2.5, 0.25, 0), V(2.45, 0.25, 0)),
    Part.LineSegment(V(2.45, 0.25, 0), V(2.45, 0, 0)),
    Part.LineSegment(V(2.45, 0, 0), V(2.5, 0, 0)),
    Part.ArcOfCircle(Part.Circle(V(2.5, 0.8, 0), V(0, 0, 1), 0.8), math.radians(-90), math.radians(0)),
    Part.LineSegment(V(3.3, 0.8, 0), V(3.3, 1.8, 0)),
    Part.LineSegment(V(3.3, 1.8, 0), V(3.05, 1.8, 0)),
    Part.LineSegment(V(3.05, 1.8, 0), V(3.05, 0.8, 0)),
], False)
sketch7.addConstraint([
    Sketcher.Constraint("Coincident", 0, 2, 1, 1),
    Sketcher.Constraint("Tangent", 1, 2, 2, 1),
    Sketcher.Constraint("Tangent", 2, 2, 3, 1),
    Sketcher.Constraint("Coincident", 3, 2, 4, 1),
    Sketcher.Constraint("Coincident", 4, 2, 5, 1),
    Sketcher.Constraint("Tangent", 5, 2, 6, 2),
    Sketcher.Constraint("Tangent", 6, 1, 7, 1),
    Sketcher.Constraint("Coincident", 7, 2, 0, 1),
    Sketcher.Constraint("Tangent", 8, 1, 9, 1),
    Sketcher.Constraint("Coincident", 9, 2, 10, 1),
    Sketcher.Constraint("Coincident", 10, 2, 11, 1),
    Sketcher.Constraint("Coincident", 11, 2, 12, 1),
    Sketcher.Constraint("Tangent", 12, 2, 13, 1),
    Sketcher.Constraint("Coincident", 13, 2, 14, 1),
    Sketcher.Constraint("Coincident", 14, 2, 15, 1),
    Sketcher.Constraint("Tangent", 15, 2, 8, 2),
    Sketcher.Constraint("Horizontal", 0),
    Sketcher.Constraint("Vertical", 1),
    Sketcher.Constraint("Horizontal", 3),
    Sketcher.Constraint("Vertical", 4),
    Sketcher.Constraint("Horizontal", 5),
    Sketcher.Constraint("Vertical", 7),
    Sketcher.Constraint("Horizontal", 9),
    Sketcher.Constraint("Vertical", 10),
    Sketcher.Constraint("Horizontal", 11),
    Sketcher.Constraint("Vertical", 13),
    Sketcher.Constraint("Horizontal", 14),
    Sketcher.Constraint("Vertical", 15),
    Sketcher.Constraint("Coincident", 6, 3, 2, 3),
    Sketcher.Constraint("Coincident", 12, 3, 8, 3),
    Sketcher.Constraint("Equal", 6, 8),
    Sketcher.Constraint("Equal", 2, 12),
    Sketcher.Constraint("Symmetric", 3, 2, 10, 2, -1, 1),
    Sketcher.Constraint("Symmetric", 2, 3, 8, 3, -2),
    Sketcher.Constraint("Horizontal", 7, 2, 13, 2),
    Sketcher.Constraint("Radius", 2, Q("0.800001 mm")),
    Sketcher.Constraint("DistanceY", 1, 2, 1, 1, Q("1 mm")),
    Sketcher.Constraint("Radius", 6, Q("0.549999 mm")),
    Sketcher.Constraint("DistanceX", 2, 3, 8, 3, Q("4.999999 mm")),
    Sketcher.Constraint("DistanceX", 3, 1, 3, 2, Q("0.05 mm")),
    Sketcher.Constraint("DistanceX", 11, 1, 11, 2, Q("0.050011 mm")),
])
pad7 = doc.addObject("PartDesign::Pad", "Pad006")
body7.addObject(pad7)
pad7.Profile = sketch7
pad7.Length = 0.5
pad7.Midplane = True
body8 = doc.addObject("PartDesign::Body", "Body007")

sketch8 = doc.addObject("Sketcher::SketchObject", "Sketch007")
body8.addObject(sketch8)
sketch8.AttachmentSupport = (doc.getObject("XY_Plane007"), [""])
sketch8.MapMode = "FlatFace"
sketch8.AttachmentOffset = App.Placement(V(0, 0, 5.6), App.Rotation())
sketch8.addGeometry([
    Part.LineSegment(V(-1.8, 3.8, 0), V(2.2, 3.8, 0)),
    Part.ArcOfCircle(Part.Circle(V(2.2, 4, 0), V(0, 0, 1), 0.2), math.radians(-90), math.radians(90)),
    Part.LineSegment(V(2.2, 4.2, 0), V(-1.8, 4.2, 0)),
    Part.ArcOfCircle(Part.Circle(V(-1.8, 4, 0), V(0, 0, 1), 0.2), math.radians(90), math.radians(270)),
], False)
sketch8.addConstraint([
    Sketcher.Constraint("Tangent", 0, 2, 1, 1),
    Sketcher.Constraint("Tangent", 1, 2, 2, 1),
    Sketcher.Constraint("Tangent", 2, 2, 3, 1),
    Sketcher.Constraint("Tangent", 3, 2, 0, 1),
    Sketcher.Constraint("Horizontal", 0),
    Sketcher.Constraint("Horizontal", 2),
    Sketcher.Constraint("Radius", 1, Q("0.2 mm")),
    Sketcher.Constraint("DistanceX", 0, 1, 0, 2, Q("4 mm")),
    Sketcher.Constraint("DistanceY", -1, 1, 1, 3, Q("4 mm")),
    Sketcher.Constraint("DistanceX", -1, 1, 1, 3, Q("2.2 mm")),
])
pad8 = doc.addObject("PartDesign::Pad", "Pad007")
body8.addObject(pad8)
pad8.Profile = sketch8
pad8.Length = 0.2
body9 = doc.addObject("PartDesign::Body", "Body008")
body9.AllowCompound = True

sketch9 = doc.addObject("Sketcher::SketchObject", "Sketch008")
body9.addObject(sketch9)
sketch9.AttachmentSupport = (doc.getObject("XZ_Plane008"), [""])
sketch9.MapMode = "FlatFace"
sketch9.AttachmentOffset = App.Placement(V(0, 0, -5), App.Rotation())
add_polygon(sketch9, [(-1.8, 0.5), (1.8, 0.5), (2.2, 1.1), (-2.2, 1.1)])
sketch9.addConstraint([
    Sketcher.Constraint("Horizontal", 0),
    Sketcher.Constraint("Horizontal", 2),
    Sketcher.Constraint("Equal", 1, 3),
    Sketcher.Constraint("DistanceX", 0, 1, 0, 2, Q("3.5 mm")),
    Sketcher.Constraint("DistanceX", 2, 2, 2, 1, Q("4.5 mm")),
    Sketcher.Constraint("DistanceY", -1, 1, 0, 2, Q("0.5 mm")),
    Sketcher.Constraint("DistanceX", -1, 1, 0, 2, Q("1.75 mm")),
    Sketcher.Constraint("DistanceY", -1, 1, 1, 2, Q("1.05 mm")),
])
pad9 = doc.addObject("PartDesign::Pad", "Pad008")
body9.addObject(pad9)
pad9.Profile = sketch9
pad9.Length = 0.3
doc.recompute()

boolean = doc.addObject("PartDesign::Boolean", "Boolean")
body9.addObject(boolean)
boolean.Type = "Fuse"
boolean.addObjects([body])
doc.recompute()

boolean2 = doc.addObject("PartDesign::Boolean", "Boolean001")
body9.addObject(boolean2)
boolean2.Type = "Fuse"
boolean2.addObjects([body2])
doc.recompute()

boolean3 = doc.addObject("PartDesign::Boolean", "Boolean002")
body9.addObject(boolean3)
boolean3.Type = "Fuse"
boolean3.addObjects([body3])
doc.recompute()

boolean4 = doc.addObject("PartDesign::Boolean", "Boolean003")
body9.addObject(boolean4)
boolean4.Type = "Fuse"
boolean4.addObjects([body4])
doc.recompute()

boolean5 = doc.addObject("PartDesign::Boolean", "Boolean004")
body9.addObject(boolean5)
boolean5.Type = "Fuse"
boolean5.addObjects([body5])
doc.recompute()

boolean6 = doc.addObject("PartDesign::Boolean", "Boolean005")
body9.addObject(boolean6)
boolean6.Type = "Fuse"
boolean6.addObjects([body6])
doc.recompute()

boolean7 = doc.addObject("PartDesign::Boolean", "Boolean006")
body9.addObject(boolean7)
boolean7.Type = "Fuse"
boolean7.addObjects([body7])
doc.recompute()

boolean8 = doc.addObject("PartDesign::Boolean", "Boolean007")
body9.addObject(boolean8)
boolean8.Type = "Fuse"
boolean8.addObjects([body8])

doc.recompute()
